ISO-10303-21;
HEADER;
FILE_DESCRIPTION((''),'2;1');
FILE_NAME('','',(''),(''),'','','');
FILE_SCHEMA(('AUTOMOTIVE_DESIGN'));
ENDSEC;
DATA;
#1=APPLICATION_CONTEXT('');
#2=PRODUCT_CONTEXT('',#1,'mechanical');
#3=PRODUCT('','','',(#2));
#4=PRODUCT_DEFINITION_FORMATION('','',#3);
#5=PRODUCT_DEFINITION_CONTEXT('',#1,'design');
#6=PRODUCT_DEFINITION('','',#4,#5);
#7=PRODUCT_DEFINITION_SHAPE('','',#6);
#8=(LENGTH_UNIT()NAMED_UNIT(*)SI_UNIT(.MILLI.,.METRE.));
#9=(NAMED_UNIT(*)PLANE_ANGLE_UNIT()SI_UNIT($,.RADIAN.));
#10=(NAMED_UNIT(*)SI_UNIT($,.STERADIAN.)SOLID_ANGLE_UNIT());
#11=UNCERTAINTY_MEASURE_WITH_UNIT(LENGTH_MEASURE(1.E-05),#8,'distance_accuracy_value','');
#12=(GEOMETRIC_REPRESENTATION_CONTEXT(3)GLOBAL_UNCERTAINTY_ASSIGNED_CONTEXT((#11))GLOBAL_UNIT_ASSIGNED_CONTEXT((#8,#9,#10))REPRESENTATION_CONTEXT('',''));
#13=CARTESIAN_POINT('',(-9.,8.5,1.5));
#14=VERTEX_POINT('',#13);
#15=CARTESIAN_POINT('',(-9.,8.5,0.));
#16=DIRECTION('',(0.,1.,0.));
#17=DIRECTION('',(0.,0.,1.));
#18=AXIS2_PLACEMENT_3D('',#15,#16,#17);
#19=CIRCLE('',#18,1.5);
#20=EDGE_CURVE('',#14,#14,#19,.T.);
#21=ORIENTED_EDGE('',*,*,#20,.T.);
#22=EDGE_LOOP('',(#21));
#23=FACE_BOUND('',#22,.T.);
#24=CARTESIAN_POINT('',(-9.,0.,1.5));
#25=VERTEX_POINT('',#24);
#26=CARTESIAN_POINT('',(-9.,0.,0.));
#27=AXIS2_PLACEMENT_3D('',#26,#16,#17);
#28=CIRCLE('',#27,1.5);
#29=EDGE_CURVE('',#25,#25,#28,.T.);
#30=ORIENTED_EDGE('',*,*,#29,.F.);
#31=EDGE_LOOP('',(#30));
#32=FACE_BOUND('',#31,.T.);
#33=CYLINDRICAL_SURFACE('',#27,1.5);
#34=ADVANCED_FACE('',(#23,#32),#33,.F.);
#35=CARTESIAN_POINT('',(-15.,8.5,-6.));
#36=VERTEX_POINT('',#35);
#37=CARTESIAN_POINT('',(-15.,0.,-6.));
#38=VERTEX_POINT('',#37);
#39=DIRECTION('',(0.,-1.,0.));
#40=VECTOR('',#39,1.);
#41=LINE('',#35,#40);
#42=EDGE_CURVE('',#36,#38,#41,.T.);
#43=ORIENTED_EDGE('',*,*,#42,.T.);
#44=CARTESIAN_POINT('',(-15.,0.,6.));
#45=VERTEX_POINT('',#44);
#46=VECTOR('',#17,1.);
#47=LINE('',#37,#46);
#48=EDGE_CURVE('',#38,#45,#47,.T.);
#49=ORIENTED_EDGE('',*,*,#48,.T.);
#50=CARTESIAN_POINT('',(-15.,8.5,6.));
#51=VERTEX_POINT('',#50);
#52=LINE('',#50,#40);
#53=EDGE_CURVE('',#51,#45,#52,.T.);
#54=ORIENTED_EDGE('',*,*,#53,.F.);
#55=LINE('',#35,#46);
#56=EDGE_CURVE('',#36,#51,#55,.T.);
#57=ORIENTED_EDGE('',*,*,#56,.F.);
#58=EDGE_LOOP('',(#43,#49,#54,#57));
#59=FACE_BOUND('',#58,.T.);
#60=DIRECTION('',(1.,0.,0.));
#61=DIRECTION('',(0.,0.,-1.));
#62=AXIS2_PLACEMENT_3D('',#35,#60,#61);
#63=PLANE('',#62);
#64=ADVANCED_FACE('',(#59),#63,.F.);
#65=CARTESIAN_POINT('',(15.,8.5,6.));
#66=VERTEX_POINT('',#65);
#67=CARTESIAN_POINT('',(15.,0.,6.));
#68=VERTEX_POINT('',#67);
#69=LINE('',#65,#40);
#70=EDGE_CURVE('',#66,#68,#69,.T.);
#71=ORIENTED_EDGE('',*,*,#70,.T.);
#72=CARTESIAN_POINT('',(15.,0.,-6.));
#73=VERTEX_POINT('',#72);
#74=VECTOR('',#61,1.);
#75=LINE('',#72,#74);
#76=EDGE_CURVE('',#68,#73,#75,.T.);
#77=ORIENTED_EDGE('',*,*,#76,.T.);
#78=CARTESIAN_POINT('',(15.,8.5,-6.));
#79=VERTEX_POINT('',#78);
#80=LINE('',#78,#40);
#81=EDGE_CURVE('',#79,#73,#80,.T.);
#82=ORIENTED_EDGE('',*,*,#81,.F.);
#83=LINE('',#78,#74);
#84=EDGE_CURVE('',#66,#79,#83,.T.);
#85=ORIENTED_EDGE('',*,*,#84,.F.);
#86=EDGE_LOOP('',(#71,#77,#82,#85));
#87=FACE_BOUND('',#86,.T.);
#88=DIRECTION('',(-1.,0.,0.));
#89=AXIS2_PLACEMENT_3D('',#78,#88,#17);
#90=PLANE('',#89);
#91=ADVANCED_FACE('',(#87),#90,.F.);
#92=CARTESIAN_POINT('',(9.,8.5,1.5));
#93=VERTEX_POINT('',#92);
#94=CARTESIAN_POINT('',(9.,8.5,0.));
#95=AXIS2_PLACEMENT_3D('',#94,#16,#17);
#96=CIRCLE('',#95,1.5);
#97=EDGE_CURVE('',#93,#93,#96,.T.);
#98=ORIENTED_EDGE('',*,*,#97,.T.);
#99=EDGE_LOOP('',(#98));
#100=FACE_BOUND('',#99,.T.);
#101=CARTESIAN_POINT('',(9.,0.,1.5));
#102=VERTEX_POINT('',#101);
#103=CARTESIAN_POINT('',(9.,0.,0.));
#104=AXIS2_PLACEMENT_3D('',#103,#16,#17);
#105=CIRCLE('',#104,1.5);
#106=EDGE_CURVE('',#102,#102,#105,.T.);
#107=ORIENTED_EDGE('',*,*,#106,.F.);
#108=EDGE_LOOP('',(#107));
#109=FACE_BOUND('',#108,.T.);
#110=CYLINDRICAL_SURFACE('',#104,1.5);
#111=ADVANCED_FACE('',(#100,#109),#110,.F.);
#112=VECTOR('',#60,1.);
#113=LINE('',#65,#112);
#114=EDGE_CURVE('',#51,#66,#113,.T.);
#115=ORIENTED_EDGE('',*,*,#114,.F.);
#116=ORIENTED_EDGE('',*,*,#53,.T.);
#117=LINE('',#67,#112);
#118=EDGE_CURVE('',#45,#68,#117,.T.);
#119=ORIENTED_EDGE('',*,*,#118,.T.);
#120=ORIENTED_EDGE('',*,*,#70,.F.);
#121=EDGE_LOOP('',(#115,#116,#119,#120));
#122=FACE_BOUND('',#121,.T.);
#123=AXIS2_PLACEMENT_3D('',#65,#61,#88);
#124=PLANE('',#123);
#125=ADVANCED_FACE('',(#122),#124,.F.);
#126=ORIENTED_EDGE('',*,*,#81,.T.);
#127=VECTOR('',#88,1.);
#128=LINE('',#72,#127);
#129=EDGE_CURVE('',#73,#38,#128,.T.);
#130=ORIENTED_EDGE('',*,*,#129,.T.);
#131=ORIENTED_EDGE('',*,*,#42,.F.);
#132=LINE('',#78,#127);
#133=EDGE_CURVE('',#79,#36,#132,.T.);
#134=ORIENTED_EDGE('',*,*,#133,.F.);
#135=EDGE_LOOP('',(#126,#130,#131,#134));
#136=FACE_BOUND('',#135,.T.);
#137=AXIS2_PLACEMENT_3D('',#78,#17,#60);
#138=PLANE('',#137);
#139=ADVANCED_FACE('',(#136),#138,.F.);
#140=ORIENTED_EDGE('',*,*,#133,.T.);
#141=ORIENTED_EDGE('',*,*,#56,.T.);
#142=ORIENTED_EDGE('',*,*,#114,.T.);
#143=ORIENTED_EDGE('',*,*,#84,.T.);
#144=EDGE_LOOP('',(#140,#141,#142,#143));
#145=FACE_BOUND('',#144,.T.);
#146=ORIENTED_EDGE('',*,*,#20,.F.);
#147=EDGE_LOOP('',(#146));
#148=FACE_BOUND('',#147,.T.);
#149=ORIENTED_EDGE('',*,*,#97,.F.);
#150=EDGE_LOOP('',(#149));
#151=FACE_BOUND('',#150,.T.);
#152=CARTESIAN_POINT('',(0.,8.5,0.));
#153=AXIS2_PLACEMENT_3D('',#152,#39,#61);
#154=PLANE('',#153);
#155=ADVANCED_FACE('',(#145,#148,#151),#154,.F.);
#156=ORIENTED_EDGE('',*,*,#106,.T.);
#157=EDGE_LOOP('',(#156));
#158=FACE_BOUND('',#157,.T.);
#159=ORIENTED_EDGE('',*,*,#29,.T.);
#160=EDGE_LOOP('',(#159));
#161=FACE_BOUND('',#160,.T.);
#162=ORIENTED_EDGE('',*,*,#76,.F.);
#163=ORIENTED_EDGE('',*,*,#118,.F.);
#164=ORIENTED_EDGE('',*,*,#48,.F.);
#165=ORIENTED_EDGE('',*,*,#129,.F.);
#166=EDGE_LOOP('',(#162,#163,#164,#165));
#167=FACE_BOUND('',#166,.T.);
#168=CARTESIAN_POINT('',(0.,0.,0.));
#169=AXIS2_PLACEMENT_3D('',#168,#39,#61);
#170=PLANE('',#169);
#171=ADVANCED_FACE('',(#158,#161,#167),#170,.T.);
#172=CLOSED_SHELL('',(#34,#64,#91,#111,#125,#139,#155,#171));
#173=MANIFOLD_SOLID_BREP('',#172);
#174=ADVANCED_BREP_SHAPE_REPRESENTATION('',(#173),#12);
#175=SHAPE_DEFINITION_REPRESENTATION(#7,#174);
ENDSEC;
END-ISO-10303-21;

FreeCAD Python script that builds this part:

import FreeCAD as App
import Part
import Sketcher
from FreeCAD import Vector
Q = App.Units.Quantity


def add_polygon(sketch, points):
    """Adds a closed chain of lines whose ends are joined by coincident constraints."""
    first, n = sketch.GeometryCount, len(points)
    for a, b in zip(points, points[1:] + points[:1]):
        sketch.addGeometry(Part.LineSegment(App.Vector(*a, 0), App.Vector(*b, 0)), False)
    for i in range(n):
        sketch.addConstraint(Sketcher.Constraint("Coincident", first + i, 2, first + (i + 1) % n, 1))

doc = App.newDocument("Part")
body = doc.addObject("PartDesign::Body", "Body")

# Sketch on XZ plane
sketch1 = doc.addObject("Sketcher::SketchObject", "Sketch")
body.addObject(sketch1)
sketch1.AttachmentSupport = (doc.XZ_Plane, [""])
sketch1.MapMode = "FlatFace"
add_polygon(sketch1, [(-15, -6), (-15, 6), (15, 6), (15, -6)])  # lines 0-3
sketch1.addConstraint([
    Sketcher.Constraint("Vertical", 0),
    Sketcher.Constraint("Horizontal", 1),
    Sketcher.Constraint("Vertical", 2),
    Sketcher.Constraint("Horizontal", 3),
    Sketcher.Constraint("Symmetric", 0, 2, 2, 2, -1, 1),
    Sketcher.Constraint("DistanceX", 1, 1, 1, 2, Q("30 mm")),
    Sketcher.Constraint("DistanceY", 0, 1, 0, 2, Q("12 mm")),
])
pad1 = doc.addObject("PartDesign::Pad", "Pad")
body.addObject(pad1)
pad1.Profile = sketch1
pad1.Length = 8.5
pad1.Reversed = True

# Sketch on XZ plane
sketch2 = doc.addObject("Sketcher::SketchObject", "Sketch001")
body.addObject(sketch2)
sketch2.AttachmentSupport = (doc.XZ_Plane, [""])
sketch2.MapMode = "FlatFace"
sketch2.AttachmentOffset = App.Placement(Vector(0, 0, -8.5), App.Rotation())
sketch2.addGeometry([
    Part.Circle(Vector(-9, 0, 0), Vector(0, 0, 1), 1.5),
    Part.Circle(Vector(9, 0, 0), Vector(0, 0, 1), 1.5),
], False)
sketch2.addConstraint([
    Sketcher.Constraint("Equal", 0, 1),
    Sketcher.Constraint("Symmetric", 0, 3, 1, 3, -1, 1),
    Sketcher.Constraint("PointOnObject", 0, 3, -1),
    Sketcher.Constraint("Diameter", 0, Q("3 mm")),
    Sketcher.Constraint("DistanceX", 0, 3, -1, 1, Q("9 mm")),
])
pocket1 = doc.addObject("PartDesign::Pocket", "Pocket")
body.addObject(pocket1)
pocket1.Profile = sketch2
pocket1.Type = "ThroughAll"
pocket1.Reversed = True

doc.recompute()
